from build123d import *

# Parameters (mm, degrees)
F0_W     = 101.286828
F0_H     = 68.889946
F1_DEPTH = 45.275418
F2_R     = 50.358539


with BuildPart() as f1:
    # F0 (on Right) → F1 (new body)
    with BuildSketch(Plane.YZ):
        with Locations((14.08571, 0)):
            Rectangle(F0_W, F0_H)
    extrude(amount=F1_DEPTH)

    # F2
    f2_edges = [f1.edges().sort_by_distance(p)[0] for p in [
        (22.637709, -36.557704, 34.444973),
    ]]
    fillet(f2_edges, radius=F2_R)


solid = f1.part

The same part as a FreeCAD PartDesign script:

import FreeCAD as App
import Part
import Sketcher

V = App.Vector


def edges_at(feature, points):
    """Names of the edges that pass closest to the given points."""
    edges = feature.Shape.Edges
    near = lambda p: min(range(len(edges)), key=lambda i: edges[i].distToShape(Part.Vertex(*p))[0])
    return sorted({f"Edge{near(p) + 1}" for p in points})


def add_polygon(sketch, points):
    """Adds a closed chain of lines whose ends are joined by coincident constraints."""
    first, n = sketch.GeometryCount, len(points)
    for a, b in zip(points, points[1:] + points[:1]):
        sketch.addGeometry(Part.LineSegment(App.Vector(*a, 0), App.Vector(*b, 0)), False)
    for i in range(n):
        sketch.addConstraint(Sketcher.Constraint("Coincident", first + i, 2, first + (i + 1) % n, 1))

doc = App.newDocument("Part")
body = doc.addObject("PartDesign::Body", "Body")

# Sketch on YZ plane
sketch1 = body.newObject("Sketcher::SketchObject", "Sketch")
sketch1.AttachmentSupport = (doc.getObject("YZ_Plane"), [""])
sketch1.MapMode = "FlatFace"
add_polygon(sketch1, [(-36.557704, 34.444973), (-36.557704, -34.444973), (64.729124, -34.444973), (64.729124, 34.444973)])  # lines 0-3
sketch1.addConstraint([
    Sketcher.Constraint("Vertical", 0),
    Sketcher.Constraint("Horizontal", 1),
    Sketcher.Constraint("Vertical", 2),
    Sketcher.Constraint("Horizontal", 3),
    Sketcher.Constraint("DistanceX", 1, 1, 1, 2, 101.286828),
    Sketcher.Constraint("DistanceY", 0, 2, 0, 1, 68.889946),
    Sketcher.Constraint("DistanceX", 0, 2, -1, 1, 36.557704),
    Sketcher.Constraint("DistanceY", 0, 2, -1, 1, 34.444973),
])
pad1 = body.newObject("PartDesign::Pad", "Pad")
pad1.Profile = sketch1
pad1.Length = 45.275418
doc.recompute()

fillet = body.newObject("PartDesign::Fillet", "Fillet")
fillet.Base = (pad1, edges_at(pad1, [(22.638, -36.558, 34.445)]))
fillet.Radius = 50.358539

doc.recompute()
